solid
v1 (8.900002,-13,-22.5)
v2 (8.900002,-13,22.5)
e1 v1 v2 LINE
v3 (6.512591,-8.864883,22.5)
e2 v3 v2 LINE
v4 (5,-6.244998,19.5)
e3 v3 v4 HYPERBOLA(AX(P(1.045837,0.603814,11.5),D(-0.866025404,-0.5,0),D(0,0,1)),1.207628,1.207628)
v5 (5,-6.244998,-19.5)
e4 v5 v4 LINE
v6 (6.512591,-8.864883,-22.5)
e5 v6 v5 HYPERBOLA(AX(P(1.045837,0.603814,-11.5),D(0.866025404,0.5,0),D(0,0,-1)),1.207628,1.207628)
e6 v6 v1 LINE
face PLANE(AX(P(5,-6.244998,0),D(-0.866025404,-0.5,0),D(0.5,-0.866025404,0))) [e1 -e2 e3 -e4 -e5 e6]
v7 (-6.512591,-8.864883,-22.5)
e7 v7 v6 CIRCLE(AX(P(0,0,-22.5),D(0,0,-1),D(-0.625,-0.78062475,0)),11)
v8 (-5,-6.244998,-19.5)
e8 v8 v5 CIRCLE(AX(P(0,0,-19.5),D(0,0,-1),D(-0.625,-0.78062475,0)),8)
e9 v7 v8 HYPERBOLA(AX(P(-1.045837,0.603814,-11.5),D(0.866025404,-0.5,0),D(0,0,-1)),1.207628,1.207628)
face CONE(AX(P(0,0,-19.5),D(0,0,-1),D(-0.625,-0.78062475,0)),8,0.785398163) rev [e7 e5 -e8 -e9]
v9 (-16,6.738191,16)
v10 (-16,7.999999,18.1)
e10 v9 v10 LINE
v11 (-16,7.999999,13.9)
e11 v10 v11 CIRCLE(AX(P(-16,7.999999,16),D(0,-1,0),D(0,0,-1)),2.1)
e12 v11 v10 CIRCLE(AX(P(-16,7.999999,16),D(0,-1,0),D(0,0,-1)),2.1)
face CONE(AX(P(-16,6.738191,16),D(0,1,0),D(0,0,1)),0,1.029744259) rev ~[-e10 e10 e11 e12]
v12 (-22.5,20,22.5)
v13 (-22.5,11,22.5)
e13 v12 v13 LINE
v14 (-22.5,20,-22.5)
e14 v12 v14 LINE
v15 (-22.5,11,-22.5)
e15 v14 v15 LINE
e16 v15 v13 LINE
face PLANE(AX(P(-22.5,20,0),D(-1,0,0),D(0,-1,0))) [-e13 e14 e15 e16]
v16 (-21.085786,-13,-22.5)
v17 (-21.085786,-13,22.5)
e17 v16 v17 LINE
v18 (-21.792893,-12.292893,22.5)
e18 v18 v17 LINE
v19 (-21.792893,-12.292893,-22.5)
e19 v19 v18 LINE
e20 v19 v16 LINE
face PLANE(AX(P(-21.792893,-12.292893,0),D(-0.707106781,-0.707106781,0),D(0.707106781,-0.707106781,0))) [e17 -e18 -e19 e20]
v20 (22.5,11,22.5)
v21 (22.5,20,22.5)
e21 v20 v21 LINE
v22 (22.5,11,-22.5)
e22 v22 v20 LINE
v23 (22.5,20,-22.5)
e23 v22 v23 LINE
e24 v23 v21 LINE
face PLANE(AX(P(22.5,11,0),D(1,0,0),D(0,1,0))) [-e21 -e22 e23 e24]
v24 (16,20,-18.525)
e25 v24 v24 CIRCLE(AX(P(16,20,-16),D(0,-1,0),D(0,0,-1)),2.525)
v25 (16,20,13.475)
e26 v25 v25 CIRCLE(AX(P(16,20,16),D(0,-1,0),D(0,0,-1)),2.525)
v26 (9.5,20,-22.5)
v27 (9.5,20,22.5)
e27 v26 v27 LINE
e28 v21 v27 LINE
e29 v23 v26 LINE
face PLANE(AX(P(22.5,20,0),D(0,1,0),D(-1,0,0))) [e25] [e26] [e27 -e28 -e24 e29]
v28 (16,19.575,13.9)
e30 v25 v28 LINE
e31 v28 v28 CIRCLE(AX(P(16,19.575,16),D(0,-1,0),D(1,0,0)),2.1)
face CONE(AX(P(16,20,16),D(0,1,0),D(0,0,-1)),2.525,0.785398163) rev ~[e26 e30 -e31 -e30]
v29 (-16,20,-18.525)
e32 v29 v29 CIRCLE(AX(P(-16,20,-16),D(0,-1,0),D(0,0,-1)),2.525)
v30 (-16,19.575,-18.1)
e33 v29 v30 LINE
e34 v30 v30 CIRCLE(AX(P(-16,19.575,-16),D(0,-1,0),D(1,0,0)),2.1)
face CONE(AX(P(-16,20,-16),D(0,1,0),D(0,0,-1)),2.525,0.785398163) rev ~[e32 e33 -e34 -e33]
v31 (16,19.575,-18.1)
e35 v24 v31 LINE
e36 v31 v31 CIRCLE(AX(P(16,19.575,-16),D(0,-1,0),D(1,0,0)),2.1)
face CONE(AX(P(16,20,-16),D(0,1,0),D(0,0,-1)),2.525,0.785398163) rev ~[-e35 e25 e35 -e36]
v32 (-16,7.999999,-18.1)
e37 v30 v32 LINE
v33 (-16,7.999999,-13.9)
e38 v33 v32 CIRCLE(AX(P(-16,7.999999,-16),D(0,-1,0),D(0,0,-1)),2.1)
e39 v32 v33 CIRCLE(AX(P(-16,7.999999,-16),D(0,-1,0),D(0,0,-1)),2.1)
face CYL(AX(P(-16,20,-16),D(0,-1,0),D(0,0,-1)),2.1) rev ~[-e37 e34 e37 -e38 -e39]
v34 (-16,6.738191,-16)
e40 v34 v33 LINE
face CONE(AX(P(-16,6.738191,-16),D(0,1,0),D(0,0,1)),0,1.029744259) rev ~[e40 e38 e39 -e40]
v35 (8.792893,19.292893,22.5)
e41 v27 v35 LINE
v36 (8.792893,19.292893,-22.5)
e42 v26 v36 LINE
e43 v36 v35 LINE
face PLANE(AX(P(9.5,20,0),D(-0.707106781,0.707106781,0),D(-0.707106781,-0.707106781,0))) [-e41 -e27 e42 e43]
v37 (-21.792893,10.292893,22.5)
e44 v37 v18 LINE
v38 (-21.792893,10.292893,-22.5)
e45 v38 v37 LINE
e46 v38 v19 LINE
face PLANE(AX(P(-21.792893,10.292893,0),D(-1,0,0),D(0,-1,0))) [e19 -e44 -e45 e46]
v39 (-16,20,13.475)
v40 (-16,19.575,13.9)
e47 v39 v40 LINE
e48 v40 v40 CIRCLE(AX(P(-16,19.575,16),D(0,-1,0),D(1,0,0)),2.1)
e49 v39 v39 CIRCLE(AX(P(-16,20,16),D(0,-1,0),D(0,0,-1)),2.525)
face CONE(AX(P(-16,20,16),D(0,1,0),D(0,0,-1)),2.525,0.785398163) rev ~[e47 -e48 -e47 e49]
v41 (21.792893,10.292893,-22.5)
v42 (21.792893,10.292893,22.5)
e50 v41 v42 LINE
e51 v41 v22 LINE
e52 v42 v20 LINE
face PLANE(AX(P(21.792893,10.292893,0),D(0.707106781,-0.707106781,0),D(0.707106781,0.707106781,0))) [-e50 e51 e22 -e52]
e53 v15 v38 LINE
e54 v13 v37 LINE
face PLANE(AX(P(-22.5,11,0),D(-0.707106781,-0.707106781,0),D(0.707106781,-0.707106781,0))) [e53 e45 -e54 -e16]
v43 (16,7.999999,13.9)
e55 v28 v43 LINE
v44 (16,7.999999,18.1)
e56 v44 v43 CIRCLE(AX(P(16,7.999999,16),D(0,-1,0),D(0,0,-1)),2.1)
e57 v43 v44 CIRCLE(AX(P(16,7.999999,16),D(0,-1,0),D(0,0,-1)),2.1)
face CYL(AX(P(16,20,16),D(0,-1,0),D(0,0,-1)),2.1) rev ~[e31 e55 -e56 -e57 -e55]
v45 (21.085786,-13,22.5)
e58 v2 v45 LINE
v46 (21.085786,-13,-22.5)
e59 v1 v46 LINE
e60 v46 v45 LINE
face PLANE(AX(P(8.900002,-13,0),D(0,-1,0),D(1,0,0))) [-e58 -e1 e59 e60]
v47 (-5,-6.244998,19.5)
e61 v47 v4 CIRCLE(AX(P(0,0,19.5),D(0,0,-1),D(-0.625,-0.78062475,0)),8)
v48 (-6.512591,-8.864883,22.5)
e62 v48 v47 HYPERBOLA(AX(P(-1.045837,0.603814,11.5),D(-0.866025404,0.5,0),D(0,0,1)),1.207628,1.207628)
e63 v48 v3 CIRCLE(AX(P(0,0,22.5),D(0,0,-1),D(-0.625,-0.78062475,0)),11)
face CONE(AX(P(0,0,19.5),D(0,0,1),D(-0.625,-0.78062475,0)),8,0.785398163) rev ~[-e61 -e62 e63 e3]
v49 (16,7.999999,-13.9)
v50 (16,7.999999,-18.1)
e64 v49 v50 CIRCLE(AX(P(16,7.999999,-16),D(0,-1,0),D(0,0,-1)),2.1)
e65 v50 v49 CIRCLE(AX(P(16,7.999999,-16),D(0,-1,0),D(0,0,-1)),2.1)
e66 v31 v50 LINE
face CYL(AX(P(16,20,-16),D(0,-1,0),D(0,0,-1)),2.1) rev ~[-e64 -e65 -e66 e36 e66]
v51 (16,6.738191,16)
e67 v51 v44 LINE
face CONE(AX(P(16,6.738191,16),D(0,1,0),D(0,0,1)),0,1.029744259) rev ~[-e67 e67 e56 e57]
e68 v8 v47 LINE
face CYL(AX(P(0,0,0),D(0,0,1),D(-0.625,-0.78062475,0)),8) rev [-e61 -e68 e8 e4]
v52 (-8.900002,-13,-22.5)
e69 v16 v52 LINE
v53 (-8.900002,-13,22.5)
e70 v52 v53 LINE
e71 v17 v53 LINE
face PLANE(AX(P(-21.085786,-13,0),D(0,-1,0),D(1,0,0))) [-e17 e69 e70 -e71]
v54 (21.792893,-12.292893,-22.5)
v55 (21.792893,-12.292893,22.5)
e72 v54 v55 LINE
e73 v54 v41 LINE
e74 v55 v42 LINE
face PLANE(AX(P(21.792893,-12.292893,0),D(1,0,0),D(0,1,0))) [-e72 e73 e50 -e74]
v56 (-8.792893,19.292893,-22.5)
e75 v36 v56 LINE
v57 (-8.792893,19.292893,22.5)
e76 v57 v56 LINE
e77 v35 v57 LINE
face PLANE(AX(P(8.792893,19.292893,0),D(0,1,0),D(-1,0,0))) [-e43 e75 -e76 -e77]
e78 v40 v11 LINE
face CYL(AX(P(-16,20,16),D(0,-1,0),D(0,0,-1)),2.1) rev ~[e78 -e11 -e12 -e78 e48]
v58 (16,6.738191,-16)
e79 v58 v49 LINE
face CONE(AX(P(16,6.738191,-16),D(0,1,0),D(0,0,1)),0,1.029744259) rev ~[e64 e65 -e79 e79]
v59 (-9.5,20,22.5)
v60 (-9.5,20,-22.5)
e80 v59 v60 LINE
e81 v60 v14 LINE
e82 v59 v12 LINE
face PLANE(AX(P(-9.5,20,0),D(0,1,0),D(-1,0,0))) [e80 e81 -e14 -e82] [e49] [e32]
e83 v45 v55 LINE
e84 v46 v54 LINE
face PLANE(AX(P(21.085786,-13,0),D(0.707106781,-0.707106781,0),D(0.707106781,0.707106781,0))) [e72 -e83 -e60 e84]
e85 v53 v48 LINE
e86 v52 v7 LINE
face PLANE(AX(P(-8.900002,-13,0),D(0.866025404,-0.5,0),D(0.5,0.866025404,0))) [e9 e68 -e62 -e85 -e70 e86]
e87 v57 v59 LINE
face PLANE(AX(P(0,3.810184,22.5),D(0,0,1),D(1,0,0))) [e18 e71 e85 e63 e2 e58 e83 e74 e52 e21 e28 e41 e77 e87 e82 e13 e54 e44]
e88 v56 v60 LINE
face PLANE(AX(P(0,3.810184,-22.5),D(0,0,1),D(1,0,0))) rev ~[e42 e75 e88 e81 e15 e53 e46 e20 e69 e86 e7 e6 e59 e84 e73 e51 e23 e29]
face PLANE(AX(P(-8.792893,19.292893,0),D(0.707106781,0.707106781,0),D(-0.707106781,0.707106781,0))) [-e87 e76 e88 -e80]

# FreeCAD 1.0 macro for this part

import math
import FreeCAD as App
import Part
import Sketcher
from FreeCAD import Vector
Q = App.Units.Quantity


def edges_at(feature, points):
    """Names of the edges that pass closest to the given points."""
    edges = feature.Shape.Edges
    near = lambda p: min(range(len(edges)), key=lambda i: edges[i].distToShape(Part.Vertex(*p))[0])
    return sorted({f"Edge{near(p) + 1}" for p in points})

doc = App.newDocument("Part")
params = doc.addObject("Spreadsheet::Sheet", "Params")
for row, (alias, value) in enumerate([
    ("sketch1_radius", "8 mm"),
    ("sketch1_width", "13 mm"),
    ("sketch1_height", "9 mm"),
    ("sketch1_length", "1 mm"),
    ("pad1_length", "45 mm"),
    ("sketch2_diameter", "4.2 mm"),
    ("hole_diameter", "4.2 mm"),
    ("hole_depth", "12.000001 mm"),
    ("hole_csink_diameter", "5.05 mm"),
    ("chamfer_size", "3 mm"),
], start=1):
    params.set(f"A{row}", alias)
    params.set(f"B{row}", "=" + value)
    params.setAlias(f"B{row}", alias)

body = doc.addObject("PartDesign::Body", "Body")

sketch1 = body.newObject("Sketcher::SketchObject", "Sketch")
sketch1.AttachmentSupport = (doc.getObject("XY_Plane"), [""])
sketch1.MapMode = "FlatFace"
sketch1.addGeometry([
    Part.LineSegment(Vector(-22.5, 20, 0), Vector(-22.5, 11, 0)),
    Part.LineSegment(Vector(-22.5, 11, 0), Vector(-21.792893, 10.292893, 0)),
    Part.LineSegment(Vector(-21.792893, 10.292893, 0), Vector(-21.792893, -12.292893, 0)),
    Part.LineSegment(Vector(-21.792893, -12.292893, 0), Vector(-21.085786, -13, 0)),
    Part.LineSegment(Vector(-21.085786, -13, 0), Vector(-8.900002, -13, 0)),
    Part.LineSegment(Vector(-8.900002, -13, 0), Vector(-5, -6.244998, 0)),
    Part.ArcOfCircle(Part.Circle(Vector(0, 0, 0), Vector(0, 0, 1), 8), math.radians(-51.317813), math.radians(231.317813)),
    Part.LineSegment(Vector(5, -6.244998, 0), Vector(8.900002, -13, 0)),
    Part.LineSegment(Vector(8.900002, -13, 0), Vector(21.085786, -13, 0)),
    Part.LineSegment(Vector(21.085786, -13, 0), Vector(21.792893, -12.292893, 0)),
    Part.LineSegment(Vector(21.792893, -12.292893, 0), Vector(21.792893, 10.292893, 0)),
    Part.LineSegment(Vector(21.792893, 10.292893, 0), Vector(22.5, 11, 0)),
    Part.LineSegment(Vector(22.5, 11, 0), Vector(22.5, 20, 0)),
    Part.LineSegment(Vector(22.5, 20, 0), Vector(9.5, 20, 0)),
    Part.LineSegment(Vector(9.5, 20, 0), Vector(8.792893, 19.292893, 0)),
    Part.LineSegment(Vector(8.792893, 19.292893, 0), Vector(-8.792893, 19.292893, 0)),
    Part.LineSegment(Vector(-8.792893, 19.292893, 0), Vector(-9.5, 20, 0)),
    Part.LineSegment(Vector(-9.5, 20, 0), Vector(-22.5, 20, 0)),
], False)
sketch1.addConstraint([
    Sketcher.Constraint("Coincident", 0, 2, 1, 1),
    Sketcher.Constraint("Coincident", 1, 2, 2, 1),
    Sketcher.Constraint("Coincident", 2, 2, 3, 1),
    Sketcher.Constraint("Coincident", 3, 2, 4, 1),
    Sketcher.Constraint("Coincident", 4, 2, 5, 1),
    Sketcher.Constraint("Coincident", 5, 2, 6, 2),
    Sketcher.Constraint("Coincident", 6, 1, 7, 1),
    Sketcher.Constraint("Coincident", 7, 2, 8, 1),
    Sketcher.Constraint("Coincident", 8, 2, 9, 1),
    Sketcher.Constraint("Coincident", 9, 2, 10, 1),
    Sketcher.Constraint("Coincident", 10, 2, 11, 1),
    Sketcher.Constraint("Coincident", 11, 2, 12, 1),
    Sketcher.Constraint("Coincident", 12, 2, 13, 1),
    Sketcher.Constraint("Coincident", 13, 2, 14, 1),
    Sketcher.Constraint("Coincident", 14, 2, 15, 1),
    Sketcher.Constraint("Coincident", 15, 2, 16, 1),
    Sketcher.Constraint("Coincident", 16, 2, 17, 1),
    Sketcher.Constraint("Coincident", 17, 2, 0, 1),
    Sketcher.Constraint("Vertical", 0),
    Sketcher.Constraint("Vertical", 2),
    Sketcher.Constraint("Horizontal", 4),
    Sketcher.Constraint("Horizontal", 8),
    Sketcher.Constraint("Vertical", 10),
    Sketcher.Constraint("Vertical", 12),
    Sketcher.Constraint("Horizontal", 13),
    Sketcher.Constraint("Horizontal", 15),
    Sketcher.Constraint("Horizontal", 17),
    Sketcher.Constraint("Coincident", 6, 3, -1, 1),
    Sketcher.Constraint("Symmetric", 4, 2, 7, 2, -2),
    Sketcher.Constraint("Symmetric", 2, 2, 9, 2, -2),
    Sketcher.Constraint("Symmetric", 0, 2, 11, 2, -2),
    Sketcher.Constraint("Symmetric", 13, 2, 16, 2, -2),
    Sketcher.Constraint("Parallel", 1, 3),
    Sketcher.Constraint("Perpendicular", 3, 9),
    Sketcher.Constraint("Parallel", 9, 11),
    Sketcher.Constraint("Parallel", 11, 14),
    Sketcher.Constraint("Perpendicular", 14, 16),
    Sketcher.Constraint("Horizontal", 5, 2, 6, 1),
    Sketcher.Constraint("Horizontal", 1, 2, 10, 2),
    Sketcher.Constraint("Equal", 1, 3),
    Sketcher.Constraint("Equal", 11, 14),
    Sketcher.Constraint("Radius", 6, Q("8 mm")),
    Sketcher.Constraint("DistanceX", 13, 2, 13, 1, Q("13 mm")),
    Sketcher.Constraint("DistanceY", 0, 2, 0, 1, Q("9 mm")),
    Sketcher.Constraint("Angle", 5, Q("60 deg")),
    Sketcher.Constraint("Distance", 1, Q("1 mm")),
    Sketcher.Constraint("DistanceY", -1, 1, 0, 2, Q("11 mm")),
    Sketcher.Constraint("DistanceY", 3, 2, -1, 1, Q("13 mm")),
    Sketcher.Constraint("DistanceX", 5, 2, -1, 1, Q("5 mm")),
    Sketcher.Constraint("DistanceX", 16, 2, 13, 2, Q("19 mm")),
])
sketch1.setExpression("Constraints[41]", "Params.sketch1_radius")
sketch1.setExpression("Constraints[42]", "Params.sketch1_width")
sketch1.setExpression("Constraints[43]", "Params.sketch1_height")
sketch1.setExpression("Constraints[45]", "Params.sketch1_length")
pad1 = body.newObject("PartDesign::Pad", "Pad")
pad1.Profile = sketch1
pad1.setExpression("Length", "Params.pad1_length")
pad1.Midplane = True

sketch2 = body.newObject("Sketcher::SketchObject", "Sketch001")
sketch2.AttachmentSupport = (doc.getObject("XZ_Plane"), [""])
sketch2.MapMode = "FlatFace"
sketch2.AttachmentOffset = App.Placement(Vector(0, 0, -20), App.Rotation())
sketch2.addGeometry([
    Part.Circle(Vector(16, 16, 0), Vector(0, 0, 1), 2.1),
    Part.Circle(Vector(16, -16, 0), Vector(0, 0, 1), 2.1),
    Part.Circle(Vector(-16, -16, 0), Vector(0, 0, 1), 2.1),
    Part.Circle(Vector(-16, 16, 0), Vector(0, 0, 1), 2.1),
], False)
sketch2.addConstraint([
    Sketcher.Constraint("Equal", 0, 1),
    Sketcher.Constraint("Equal", 1, 2),
    Sketcher.Constraint("Equal", 2, 3),
    Sketcher.Constraint("Symmetric", 0, 3, 2, 3, -1, 1),
    Sketcher.Constraint("Symmetric", 1, 3, 3, 3, -1, 1),
    Sketcher.Constraint("Symmetric", 1, 3, 2, 3, -2),
    Sketcher.Constraint("Diameter", 0, Q("4.2 mm")),
    Sketcher.Constraint("DistanceX", -1, 1, 0, 3, Q("16 mm")),
    Sketcher.Constraint("DistanceY", -1, 1, 0, 3, Q("16 mm")),
])
sketch2.setExpression("Constraints[6]", "Params.sketch2_diameter")
doc.recompute()
hole = body.newObject("PartDesign::Hole", "Hole")
hole.Profile = sketch2
hole.ThreadType = "None"
hole.setExpression("Diameter", "Params.hole_diameter")
hole.DepthType = "Dimension"
hole.setExpression("Depth", "Params.hole_depth")
hole.DrillPoint = "Angled"
hole.DrillPointAngle = 118
hole.HoleCutType = "Countersink"
hole.setExpression("HoleCutDiameter", "Params.hole_csink_diameter")
hole.HoleCutCountersinkAngle = 90
hole.Reversed = True
doc.recompute()

chamfer = body.newObject("PartDesign::Chamfer", "Chamfer")
chamfer.Base = (hole, edges_at(hole, [(0, 8, -22.5), (0, 8, 22.5)]))
chamfer.setExpression("Size", "Params.chamfer_size")

doc.recompute()
